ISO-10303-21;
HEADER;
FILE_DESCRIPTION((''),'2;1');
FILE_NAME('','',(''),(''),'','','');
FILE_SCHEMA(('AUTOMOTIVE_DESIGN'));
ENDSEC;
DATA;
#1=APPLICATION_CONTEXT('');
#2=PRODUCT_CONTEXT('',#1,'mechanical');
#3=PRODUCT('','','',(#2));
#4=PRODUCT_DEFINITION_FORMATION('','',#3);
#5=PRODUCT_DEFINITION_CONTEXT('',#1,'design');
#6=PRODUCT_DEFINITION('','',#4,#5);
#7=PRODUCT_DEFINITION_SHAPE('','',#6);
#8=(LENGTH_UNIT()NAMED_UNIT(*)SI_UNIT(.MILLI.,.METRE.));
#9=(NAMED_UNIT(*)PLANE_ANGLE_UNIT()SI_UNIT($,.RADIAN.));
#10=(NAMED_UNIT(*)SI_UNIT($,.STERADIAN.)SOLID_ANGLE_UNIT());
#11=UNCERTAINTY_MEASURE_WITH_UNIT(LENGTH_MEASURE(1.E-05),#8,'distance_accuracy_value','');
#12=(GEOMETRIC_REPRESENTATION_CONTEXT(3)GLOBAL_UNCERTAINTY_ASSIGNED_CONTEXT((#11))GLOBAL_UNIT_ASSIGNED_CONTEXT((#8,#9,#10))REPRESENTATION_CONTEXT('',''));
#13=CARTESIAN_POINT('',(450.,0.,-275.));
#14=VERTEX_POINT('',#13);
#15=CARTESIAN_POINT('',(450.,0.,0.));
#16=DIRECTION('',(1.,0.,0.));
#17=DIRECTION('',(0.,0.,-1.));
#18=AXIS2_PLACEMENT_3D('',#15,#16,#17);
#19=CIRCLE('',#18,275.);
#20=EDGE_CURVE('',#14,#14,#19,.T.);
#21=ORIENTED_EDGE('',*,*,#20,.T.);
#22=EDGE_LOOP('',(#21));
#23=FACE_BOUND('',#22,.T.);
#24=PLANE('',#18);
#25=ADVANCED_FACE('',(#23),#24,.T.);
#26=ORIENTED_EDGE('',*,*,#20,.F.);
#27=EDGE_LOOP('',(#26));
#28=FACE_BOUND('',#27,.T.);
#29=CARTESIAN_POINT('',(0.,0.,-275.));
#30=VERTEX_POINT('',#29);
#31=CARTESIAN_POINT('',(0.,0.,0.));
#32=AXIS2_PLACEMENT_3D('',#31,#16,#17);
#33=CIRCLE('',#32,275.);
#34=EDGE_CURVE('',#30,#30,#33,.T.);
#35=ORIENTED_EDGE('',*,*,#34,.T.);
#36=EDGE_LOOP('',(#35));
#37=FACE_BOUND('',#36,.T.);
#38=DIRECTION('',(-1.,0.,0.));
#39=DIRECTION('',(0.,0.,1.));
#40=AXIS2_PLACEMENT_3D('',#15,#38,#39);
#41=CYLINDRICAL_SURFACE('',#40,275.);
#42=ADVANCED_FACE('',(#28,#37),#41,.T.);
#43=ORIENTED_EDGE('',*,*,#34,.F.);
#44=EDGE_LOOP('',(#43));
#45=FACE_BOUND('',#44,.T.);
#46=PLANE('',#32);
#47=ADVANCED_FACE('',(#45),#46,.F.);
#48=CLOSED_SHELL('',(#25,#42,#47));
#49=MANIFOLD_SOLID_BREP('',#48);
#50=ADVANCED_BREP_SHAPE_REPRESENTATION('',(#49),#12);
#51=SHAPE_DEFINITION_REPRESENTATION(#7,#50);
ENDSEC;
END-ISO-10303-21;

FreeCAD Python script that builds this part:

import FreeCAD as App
import Part
import Sketcher

doc = App.newDocument("Part")
params = doc.addObject("Spreadsheet::Sheet", "Params")
for row, (alias, value) in enumerate([
    ("sketch1_diameter", "550 mm"),
    ("pad1_length", "450 mm"),
], start=1):
    params.set(f"A{row}", alias)
    params.set(f"B{row}", "=" + value)
    params.setAlias(f"B{row}", alias)

body = doc.addObject("PartDesign::Body", "Body")

# Sketch on YZ plane
sketch1 = body.newObject("Sketcher::SketchObject", "Sketch")
sketch1.AttachmentSupport = (doc.getObject("YZ_Plane"), [""])
sketch1.MapMode = "FlatFace"
sketch1.addGeometry(Part.Circle(App.Vector(0, 0, 0), App.Vector(0, 0, 1), 275), False)
sketch1.addConstraint([
    Sketcher.Constraint("Coincident", 0, 3, -1, 1),
    Sketcher.Constraint("Diameter", 0, 550.0),
])
sketch1.setExpression("Constraints[1]", "Params.sketch1_diameter")
pad1 = body.newObject("PartDesign::Pad", "Pad")
pad1.Profile = sketch1
pad1.setExpression("Length", "Params.pad1_length")

doc.recompute()
